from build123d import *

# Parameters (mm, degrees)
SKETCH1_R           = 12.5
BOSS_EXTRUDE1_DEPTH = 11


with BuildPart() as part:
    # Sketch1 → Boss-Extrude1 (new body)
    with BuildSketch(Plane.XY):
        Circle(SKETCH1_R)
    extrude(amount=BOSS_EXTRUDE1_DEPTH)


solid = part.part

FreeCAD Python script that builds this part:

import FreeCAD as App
import Part
import Sketcher

doc = App.newDocument("Part")
body = doc.addObject("PartDesign::Body", "Body")

# Sketch on XY plane
sketch1 = body.newObject("Sketcher::SketchObject", "Sketch")
sketch1.AttachmentSupport = (doc.getObject("XY_Plane"), [""])
sketch1.MapMode = "FlatFace"
sketch1.addGeometry(Part.Circle(App.Vector(0, 0, 0), App.Vector(0, 0, 1), 12), False)
sketch1.addConstraint([
    Sketcher.Constraint("Coincident", 0, 3, -1, 1),
    Sketcher.Constraint("Diameter", 0, 25.0),
])
pad1 = body.newObject("PartDesign::Pad", "Pad")
pad1.Profile = sketch1
pad1.Length = 11

doc.recompute()
